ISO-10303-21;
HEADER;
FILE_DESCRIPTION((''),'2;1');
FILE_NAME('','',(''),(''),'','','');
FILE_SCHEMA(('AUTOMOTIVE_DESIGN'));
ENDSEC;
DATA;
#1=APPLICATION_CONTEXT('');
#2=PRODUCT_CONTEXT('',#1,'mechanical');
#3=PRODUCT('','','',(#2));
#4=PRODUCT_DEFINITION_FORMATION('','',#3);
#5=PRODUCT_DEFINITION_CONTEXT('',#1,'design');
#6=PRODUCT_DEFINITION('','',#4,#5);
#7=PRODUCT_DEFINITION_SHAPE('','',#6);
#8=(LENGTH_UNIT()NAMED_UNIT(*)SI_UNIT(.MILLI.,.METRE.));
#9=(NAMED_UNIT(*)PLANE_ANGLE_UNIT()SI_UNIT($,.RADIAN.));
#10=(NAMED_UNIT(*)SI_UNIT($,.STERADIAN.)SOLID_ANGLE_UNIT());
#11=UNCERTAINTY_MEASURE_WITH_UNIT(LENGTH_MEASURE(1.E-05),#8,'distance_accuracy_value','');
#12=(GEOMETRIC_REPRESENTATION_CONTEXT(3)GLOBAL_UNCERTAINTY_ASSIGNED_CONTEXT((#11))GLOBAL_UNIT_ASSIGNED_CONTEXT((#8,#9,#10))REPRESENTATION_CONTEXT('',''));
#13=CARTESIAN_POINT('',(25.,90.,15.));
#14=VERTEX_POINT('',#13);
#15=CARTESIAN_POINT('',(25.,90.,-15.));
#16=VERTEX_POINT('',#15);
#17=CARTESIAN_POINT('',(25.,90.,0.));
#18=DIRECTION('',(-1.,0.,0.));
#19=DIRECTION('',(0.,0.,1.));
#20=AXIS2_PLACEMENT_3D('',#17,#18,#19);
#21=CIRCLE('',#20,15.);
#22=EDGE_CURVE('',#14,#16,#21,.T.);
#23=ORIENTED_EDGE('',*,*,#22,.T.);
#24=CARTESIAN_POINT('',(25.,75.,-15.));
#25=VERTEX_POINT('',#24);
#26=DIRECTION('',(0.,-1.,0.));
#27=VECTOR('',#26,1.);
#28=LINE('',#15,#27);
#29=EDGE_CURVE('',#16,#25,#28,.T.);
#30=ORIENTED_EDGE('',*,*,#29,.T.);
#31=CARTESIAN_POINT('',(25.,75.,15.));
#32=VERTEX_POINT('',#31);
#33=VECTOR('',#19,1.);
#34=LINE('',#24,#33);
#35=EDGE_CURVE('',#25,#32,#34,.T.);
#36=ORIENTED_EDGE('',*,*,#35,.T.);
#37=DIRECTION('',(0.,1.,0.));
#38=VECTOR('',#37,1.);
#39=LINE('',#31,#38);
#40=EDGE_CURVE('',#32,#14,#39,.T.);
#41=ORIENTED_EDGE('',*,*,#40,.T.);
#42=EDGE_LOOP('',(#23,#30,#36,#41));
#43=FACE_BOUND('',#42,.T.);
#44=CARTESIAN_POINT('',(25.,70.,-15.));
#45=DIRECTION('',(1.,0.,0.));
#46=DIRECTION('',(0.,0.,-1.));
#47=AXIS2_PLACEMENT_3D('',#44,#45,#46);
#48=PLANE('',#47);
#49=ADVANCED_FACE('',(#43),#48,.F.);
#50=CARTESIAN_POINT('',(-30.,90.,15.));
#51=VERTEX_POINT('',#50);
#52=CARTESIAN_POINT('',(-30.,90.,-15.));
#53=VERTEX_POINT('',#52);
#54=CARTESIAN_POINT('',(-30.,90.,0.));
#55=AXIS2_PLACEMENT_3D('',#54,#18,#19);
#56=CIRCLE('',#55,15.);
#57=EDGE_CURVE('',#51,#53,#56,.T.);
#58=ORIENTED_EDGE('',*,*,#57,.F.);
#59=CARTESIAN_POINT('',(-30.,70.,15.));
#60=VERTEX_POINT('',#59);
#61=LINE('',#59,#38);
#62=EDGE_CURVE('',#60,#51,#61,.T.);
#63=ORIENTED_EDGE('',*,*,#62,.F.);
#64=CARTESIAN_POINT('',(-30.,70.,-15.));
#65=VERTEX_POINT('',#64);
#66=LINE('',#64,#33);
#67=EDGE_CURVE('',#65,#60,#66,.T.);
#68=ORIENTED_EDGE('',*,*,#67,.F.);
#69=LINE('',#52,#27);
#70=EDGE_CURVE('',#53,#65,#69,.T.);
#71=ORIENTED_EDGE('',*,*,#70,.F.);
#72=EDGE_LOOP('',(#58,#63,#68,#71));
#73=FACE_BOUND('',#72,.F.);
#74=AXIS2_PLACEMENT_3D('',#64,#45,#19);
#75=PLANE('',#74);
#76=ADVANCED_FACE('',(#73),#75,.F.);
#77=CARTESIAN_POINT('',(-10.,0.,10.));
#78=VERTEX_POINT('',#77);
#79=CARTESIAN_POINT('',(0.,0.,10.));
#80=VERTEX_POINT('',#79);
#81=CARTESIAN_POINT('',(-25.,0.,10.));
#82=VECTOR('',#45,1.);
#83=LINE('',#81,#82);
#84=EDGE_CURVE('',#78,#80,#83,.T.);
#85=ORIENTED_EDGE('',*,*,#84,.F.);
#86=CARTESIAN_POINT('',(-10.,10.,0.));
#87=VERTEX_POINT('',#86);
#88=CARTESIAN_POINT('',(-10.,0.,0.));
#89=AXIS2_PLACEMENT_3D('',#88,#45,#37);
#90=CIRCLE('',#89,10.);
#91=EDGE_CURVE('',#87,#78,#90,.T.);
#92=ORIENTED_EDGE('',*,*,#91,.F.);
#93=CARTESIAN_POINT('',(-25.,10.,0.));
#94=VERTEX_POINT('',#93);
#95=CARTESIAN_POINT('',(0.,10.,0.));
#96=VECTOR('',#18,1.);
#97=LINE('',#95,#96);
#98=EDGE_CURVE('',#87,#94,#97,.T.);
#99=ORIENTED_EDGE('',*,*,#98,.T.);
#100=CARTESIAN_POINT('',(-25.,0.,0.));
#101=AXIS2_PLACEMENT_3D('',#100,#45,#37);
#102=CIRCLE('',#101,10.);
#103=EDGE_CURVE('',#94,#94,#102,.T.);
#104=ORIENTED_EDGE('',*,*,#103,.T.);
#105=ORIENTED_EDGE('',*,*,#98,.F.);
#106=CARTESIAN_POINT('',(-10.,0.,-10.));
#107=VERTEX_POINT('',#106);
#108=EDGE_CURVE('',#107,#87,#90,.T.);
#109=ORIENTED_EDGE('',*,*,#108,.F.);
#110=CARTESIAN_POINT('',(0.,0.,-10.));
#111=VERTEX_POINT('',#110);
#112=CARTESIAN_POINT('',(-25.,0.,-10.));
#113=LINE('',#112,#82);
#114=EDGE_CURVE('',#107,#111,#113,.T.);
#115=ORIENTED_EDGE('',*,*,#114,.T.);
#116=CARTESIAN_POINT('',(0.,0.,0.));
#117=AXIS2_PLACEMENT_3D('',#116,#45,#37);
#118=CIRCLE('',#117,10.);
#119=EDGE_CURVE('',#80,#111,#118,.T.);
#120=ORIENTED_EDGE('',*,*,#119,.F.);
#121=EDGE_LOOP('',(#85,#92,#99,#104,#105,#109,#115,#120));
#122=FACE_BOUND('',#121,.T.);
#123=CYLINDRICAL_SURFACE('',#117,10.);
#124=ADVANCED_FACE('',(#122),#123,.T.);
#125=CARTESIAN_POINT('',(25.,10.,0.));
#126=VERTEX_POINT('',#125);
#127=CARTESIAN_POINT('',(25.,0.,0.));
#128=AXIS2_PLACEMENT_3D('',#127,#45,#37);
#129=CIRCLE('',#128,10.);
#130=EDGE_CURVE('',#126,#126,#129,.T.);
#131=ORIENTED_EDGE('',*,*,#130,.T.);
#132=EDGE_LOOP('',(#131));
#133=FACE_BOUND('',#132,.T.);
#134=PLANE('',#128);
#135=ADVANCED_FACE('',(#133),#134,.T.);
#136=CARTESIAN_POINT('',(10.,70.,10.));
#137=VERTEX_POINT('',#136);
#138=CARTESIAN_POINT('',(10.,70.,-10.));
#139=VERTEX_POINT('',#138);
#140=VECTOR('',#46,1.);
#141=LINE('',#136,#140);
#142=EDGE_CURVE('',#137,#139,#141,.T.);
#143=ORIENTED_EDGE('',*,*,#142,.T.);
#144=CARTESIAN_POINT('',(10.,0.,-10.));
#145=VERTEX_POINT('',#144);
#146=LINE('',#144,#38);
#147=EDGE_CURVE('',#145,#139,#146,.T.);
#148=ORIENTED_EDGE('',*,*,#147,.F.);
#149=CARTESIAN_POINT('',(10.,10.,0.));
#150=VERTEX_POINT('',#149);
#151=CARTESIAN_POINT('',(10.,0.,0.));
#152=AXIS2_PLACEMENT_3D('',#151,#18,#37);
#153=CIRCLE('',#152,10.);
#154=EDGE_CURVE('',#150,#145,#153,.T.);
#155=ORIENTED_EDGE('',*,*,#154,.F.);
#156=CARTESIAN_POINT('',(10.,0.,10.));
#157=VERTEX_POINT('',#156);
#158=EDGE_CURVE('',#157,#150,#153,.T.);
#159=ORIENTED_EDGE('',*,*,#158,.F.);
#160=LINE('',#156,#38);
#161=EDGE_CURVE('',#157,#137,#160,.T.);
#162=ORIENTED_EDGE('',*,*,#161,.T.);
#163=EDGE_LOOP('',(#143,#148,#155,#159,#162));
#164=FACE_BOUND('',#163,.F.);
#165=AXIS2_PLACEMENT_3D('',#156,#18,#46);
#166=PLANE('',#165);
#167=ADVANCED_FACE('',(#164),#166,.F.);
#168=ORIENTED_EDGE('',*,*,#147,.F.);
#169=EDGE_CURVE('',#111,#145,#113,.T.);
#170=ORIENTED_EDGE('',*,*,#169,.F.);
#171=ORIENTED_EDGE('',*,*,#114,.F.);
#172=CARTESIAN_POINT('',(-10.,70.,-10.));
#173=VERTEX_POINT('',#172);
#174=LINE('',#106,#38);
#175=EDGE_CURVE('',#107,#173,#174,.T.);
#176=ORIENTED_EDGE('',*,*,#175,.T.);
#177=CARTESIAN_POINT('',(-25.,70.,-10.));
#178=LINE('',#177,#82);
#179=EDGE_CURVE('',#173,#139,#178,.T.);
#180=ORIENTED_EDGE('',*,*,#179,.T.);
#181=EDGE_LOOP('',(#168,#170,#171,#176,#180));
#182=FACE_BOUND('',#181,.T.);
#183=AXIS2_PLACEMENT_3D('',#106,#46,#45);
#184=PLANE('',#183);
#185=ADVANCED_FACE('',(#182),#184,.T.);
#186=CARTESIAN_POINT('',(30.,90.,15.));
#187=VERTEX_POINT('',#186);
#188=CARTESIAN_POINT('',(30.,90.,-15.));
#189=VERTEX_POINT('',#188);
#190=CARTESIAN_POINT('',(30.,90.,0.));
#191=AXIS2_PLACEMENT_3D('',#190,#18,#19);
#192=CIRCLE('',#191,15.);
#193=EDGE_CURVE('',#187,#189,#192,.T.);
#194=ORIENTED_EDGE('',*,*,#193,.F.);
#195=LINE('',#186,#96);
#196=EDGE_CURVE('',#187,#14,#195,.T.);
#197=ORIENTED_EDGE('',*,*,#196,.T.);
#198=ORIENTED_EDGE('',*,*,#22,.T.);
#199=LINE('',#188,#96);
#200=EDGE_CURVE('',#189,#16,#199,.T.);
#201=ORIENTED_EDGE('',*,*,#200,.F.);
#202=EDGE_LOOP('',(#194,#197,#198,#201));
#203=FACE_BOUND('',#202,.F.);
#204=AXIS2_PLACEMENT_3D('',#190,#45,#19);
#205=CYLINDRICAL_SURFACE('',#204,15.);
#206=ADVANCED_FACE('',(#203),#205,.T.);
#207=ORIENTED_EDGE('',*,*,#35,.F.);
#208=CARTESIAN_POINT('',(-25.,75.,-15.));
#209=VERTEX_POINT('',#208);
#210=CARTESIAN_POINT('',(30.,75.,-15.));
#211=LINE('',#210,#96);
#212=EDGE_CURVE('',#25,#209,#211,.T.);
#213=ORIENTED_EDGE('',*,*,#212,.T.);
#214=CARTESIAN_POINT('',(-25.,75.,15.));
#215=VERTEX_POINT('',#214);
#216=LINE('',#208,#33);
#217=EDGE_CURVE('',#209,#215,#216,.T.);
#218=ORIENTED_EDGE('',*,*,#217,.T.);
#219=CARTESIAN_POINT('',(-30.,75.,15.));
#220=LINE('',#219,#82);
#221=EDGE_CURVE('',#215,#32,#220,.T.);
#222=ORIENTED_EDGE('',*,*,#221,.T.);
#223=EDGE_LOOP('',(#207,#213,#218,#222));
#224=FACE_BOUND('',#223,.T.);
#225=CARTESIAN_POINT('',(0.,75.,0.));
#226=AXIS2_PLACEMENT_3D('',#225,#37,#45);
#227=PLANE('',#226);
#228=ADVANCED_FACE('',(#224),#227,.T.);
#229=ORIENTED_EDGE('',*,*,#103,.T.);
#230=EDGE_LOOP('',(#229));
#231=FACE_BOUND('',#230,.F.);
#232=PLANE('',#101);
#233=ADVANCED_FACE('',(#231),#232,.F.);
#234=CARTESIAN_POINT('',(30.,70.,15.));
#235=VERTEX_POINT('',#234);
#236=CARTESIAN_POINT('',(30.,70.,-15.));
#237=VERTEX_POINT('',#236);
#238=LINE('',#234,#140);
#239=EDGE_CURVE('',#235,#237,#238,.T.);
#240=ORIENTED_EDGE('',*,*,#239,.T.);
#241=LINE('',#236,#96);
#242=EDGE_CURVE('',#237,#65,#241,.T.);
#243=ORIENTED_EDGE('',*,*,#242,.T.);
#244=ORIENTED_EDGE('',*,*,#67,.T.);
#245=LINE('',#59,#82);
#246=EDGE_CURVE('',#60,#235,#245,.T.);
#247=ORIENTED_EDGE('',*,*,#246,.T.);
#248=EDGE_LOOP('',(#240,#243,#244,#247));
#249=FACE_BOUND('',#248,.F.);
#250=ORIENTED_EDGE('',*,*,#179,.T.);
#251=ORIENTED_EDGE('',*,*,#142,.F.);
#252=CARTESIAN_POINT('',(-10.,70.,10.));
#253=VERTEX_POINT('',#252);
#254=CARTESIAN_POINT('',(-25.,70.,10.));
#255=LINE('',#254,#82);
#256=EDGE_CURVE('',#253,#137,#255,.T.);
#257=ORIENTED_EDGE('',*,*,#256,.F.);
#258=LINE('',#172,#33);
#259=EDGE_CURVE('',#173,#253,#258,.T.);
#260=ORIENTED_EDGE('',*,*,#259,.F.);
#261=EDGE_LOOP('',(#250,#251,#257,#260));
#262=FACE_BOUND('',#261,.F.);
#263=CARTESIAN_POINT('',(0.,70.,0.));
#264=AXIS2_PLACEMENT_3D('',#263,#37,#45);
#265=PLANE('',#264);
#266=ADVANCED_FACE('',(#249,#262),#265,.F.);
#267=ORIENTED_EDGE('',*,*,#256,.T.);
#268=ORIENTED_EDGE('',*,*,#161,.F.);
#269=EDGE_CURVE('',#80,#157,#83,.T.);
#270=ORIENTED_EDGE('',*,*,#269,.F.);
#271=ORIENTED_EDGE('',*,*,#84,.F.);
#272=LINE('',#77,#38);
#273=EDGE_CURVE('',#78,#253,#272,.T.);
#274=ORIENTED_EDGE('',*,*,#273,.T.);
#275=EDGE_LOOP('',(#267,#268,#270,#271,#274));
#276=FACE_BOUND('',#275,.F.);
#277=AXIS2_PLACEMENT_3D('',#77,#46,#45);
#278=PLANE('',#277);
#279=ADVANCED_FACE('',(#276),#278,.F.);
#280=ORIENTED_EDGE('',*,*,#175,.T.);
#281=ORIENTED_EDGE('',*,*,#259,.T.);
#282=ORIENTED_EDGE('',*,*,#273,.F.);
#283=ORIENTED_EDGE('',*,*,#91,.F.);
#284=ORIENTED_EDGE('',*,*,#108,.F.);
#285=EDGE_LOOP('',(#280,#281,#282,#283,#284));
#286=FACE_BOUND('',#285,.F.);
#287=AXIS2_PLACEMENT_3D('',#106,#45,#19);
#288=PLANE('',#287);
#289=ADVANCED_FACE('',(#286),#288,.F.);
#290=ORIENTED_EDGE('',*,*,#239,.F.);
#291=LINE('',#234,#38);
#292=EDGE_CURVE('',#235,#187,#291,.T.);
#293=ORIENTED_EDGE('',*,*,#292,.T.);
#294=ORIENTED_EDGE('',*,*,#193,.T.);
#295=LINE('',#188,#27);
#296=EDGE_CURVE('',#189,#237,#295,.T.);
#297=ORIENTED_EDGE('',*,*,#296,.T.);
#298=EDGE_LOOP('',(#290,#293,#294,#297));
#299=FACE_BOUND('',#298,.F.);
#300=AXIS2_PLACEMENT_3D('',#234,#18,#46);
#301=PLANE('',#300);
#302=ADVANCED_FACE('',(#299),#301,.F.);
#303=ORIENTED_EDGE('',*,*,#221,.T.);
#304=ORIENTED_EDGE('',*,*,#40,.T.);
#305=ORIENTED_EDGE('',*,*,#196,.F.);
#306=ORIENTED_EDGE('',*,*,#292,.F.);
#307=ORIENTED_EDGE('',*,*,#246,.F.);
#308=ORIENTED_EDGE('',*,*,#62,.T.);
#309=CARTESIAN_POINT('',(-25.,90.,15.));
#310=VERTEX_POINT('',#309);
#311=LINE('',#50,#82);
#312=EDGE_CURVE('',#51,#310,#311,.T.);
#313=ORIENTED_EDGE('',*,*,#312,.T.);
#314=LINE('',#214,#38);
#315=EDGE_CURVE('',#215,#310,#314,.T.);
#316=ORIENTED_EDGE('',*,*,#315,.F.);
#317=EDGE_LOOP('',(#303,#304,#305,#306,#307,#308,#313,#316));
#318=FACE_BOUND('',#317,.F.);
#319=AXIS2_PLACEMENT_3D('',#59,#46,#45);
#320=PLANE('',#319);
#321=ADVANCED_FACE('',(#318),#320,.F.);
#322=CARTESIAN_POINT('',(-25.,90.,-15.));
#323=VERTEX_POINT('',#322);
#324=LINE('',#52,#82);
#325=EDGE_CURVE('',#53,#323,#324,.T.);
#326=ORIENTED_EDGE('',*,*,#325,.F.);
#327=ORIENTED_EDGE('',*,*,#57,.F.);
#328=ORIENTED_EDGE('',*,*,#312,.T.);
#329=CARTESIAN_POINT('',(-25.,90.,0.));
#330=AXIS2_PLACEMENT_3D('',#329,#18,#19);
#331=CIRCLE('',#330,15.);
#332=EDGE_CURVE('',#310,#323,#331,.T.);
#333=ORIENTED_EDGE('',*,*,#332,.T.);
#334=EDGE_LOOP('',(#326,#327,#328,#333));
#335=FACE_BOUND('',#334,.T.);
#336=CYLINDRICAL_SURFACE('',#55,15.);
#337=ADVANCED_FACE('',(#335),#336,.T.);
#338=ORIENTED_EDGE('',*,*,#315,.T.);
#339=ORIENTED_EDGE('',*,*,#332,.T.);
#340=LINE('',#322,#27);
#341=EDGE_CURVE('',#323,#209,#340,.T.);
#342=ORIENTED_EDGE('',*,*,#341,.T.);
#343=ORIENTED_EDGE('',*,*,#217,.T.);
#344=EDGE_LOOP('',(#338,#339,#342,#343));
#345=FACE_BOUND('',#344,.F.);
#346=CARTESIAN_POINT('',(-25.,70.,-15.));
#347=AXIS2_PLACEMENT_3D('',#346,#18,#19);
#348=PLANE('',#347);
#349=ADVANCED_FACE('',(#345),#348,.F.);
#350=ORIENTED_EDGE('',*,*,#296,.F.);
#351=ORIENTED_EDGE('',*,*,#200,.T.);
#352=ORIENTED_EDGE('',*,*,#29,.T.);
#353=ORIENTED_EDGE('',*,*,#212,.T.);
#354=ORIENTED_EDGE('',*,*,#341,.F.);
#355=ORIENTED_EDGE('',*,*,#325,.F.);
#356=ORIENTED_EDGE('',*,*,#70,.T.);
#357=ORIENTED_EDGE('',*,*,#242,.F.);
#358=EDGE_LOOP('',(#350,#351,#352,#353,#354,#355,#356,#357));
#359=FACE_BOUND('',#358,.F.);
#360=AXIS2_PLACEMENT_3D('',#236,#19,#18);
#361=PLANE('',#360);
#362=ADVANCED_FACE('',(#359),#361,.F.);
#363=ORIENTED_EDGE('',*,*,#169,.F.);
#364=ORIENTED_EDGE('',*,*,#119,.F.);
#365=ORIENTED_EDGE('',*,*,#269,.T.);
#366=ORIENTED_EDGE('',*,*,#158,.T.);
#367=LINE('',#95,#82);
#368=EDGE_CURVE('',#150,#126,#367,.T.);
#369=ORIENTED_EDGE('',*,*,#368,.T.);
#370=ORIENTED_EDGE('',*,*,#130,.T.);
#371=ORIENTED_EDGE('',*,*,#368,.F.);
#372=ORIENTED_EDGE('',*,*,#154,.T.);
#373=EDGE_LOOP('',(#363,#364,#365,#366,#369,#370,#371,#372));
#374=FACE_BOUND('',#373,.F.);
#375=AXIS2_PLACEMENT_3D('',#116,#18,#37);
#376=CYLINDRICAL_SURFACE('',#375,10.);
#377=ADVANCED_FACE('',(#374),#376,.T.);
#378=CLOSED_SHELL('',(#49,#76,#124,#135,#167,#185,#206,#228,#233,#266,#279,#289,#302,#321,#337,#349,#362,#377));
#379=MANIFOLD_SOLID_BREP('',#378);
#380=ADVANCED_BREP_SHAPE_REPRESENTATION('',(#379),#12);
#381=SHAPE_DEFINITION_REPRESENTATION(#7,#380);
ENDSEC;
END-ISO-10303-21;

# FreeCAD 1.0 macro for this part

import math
import FreeCAD as App
import Part
import Sketcher
from FreeCAD import Vector
Q = App.Units.Quantity

doc = App.newDocument("Part")
body = doc.addObject("PartDesign::Body", "Body")

# Sketch on YZ plane
sketch1 = doc.addObject("Sketcher::SketchObject", "Sketch")
body.addObject(sketch1)
sketch1.AttachmentSupport = (doc.YZ_Plane, [""])
sketch1.MapMode = "FlatFace"
sketch1.addGeometry(Part.Circle(Vector(0, 0, 0), Vector(0, 0, 1), 10), False)
sketch1.addConstraint([
    Sketcher.Constraint("Coincident", 0, 3, -1, 1),
    Sketcher.Constraint("Diameter", 0, Q("20 mm")),
])
pad1 = doc.addObject("PartDesign::Pad", "Pad")
body.addObject(pad1)
pad1.Profile = sketch1
pad1.Length = 50
pad1.Midplane = True

# Sketch on XZ plane
sketch2 = doc.addObject("Sketcher::SketchObject", "Sketch001")
body.addObject(sketch2)
sketch2.AttachmentSupport = (doc.XZ_Plane, [""])
sketch2.MapMode = "FlatFace"
sketch2.addGeometry([
    Part.LineSegment(Vector(-10, -10, 0), Vector(-10, 10, 0)),
    Part.LineSegment(Vector(-10, 10, 0), Vector(10, 10, 0)),
    Part.LineSegment(Vector(10, 10, 0), Vector(10, -10, 0)),
    Part.LineSegment(Vector(10, -10, 0), Vector(-10, -10, 0)),
], False)
sketch2.addConstraint([
    Sketcher.Constraint("Coincident", 0, 2, 1, 1),
    Sketcher.Constraint("Coincident", 1, 2, 2, 1),
    Sketcher.Constraint("Coincident", 2, 2, 3, 1),
    Sketcher.Constraint("Coincident", 3, 2, 0, 1),
    Sketcher.Constraint("Vertical", 0),
    Sketcher.Constraint("Horizontal", 1),
    Sketcher.Constraint("Vertical", 2),
    Sketcher.Constraint("Horizontal", 3),
    Sketcher.Constraint("Symmetric", 0, 2, 2, 2, -1, 1),
    Sketcher.Constraint("Equal", 3, 0),
    Sketcher.Constraint("DistanceX", 1, 1, 1, 2, Q("20 mm")),
])
pad2 = doc.addObject("PartDesign::Pad", "Pad001")
body.addObject(pad2)
pad2.Profile = sketch2
pad2.Length = 70
pad2.Reversed = True

# Sketch on XZ plane
sketch3 = doc.addObject("Sketcher::SketchObject", "Sketch002")
body.addObject(sketch3)
sketch3.AttachmentSupport = (doc.XZ_Plane, [""])
sketch3.MapMode = "FlatFace"
sketch3.AttachmentOffset = App.Placement(Vector(0, 0, -70), App.Rotation())
sketch3.addGeometry([
    Part.LineSegment(Vector(-30, -15, 0), Vector(-30, 15, 0)),
    Part.LineSegment(Vector(-30, 15, 0), Vector(30, 15, 0)),
    Part.LineSegment(Vector(30, 15, 0), Vector(30, -15, 0)),
    Part.LineSegment(Vector(30, -15, 0), Vector(-30, -15, 0)),
], False)
sketch3.addConstraint([
    Sketcher.Constraint("Coincident", 0, 2, 1, 1),
    Sketcher.Constraint("Coincident", 1, 2, 2, 1),
    Sketcher.Constraint("Coincident", 2, 2, 3, 1),
    Sketcher.Constraint("Coincident", 3, 2, 0, 1),
    Sketcher.Constraint("Vertical", 0),
    Sketcher.Constraint("Horizontal", 1),
    Sketcher.Constraint("Vertical", 2),
    Sketcher.Constraint("Horizontal", 3),
    Sketcher.Constraint("Symmetric", 0, 2, 2, 2, -1, 1),
    Sketcher.Constraint("DistanceX", 1, 1, 1, 2, Q("60 mm")),
    Sketcher.Constraint("DistanceY", 0, 1, 0, 2, Q("30 mm")),
])
pad3 = doc.addObject("PartDesign::Pad", "Pad002")
body.addObject(pad3)
pad3.Profile = sketch3
pad3.Length = 5
pad3.Reversed = True

# Sketch on YZ plane
sketch4 = doc.addObject("Sketcher::SketchObject", "Sketch003")
body.addObject(sketch4)
sketch4.AttachmentSupport = (doc.YZ_Plane, [""])
sketch4.MapMode = "FlatFace"
sketch4.AttachmentOffset = App.Placement(Vector(0, 0, -30), App.Rotation())
sketch4.addGeometry([
    Part.LineSegment(Vector(90, -15, 0), Vector(75, -15, 0)),
    Part.LineSegment(Vector(75, -15, 0), Vector(75, 15, 0)),
    Part.LineSegment(Vector(75, 15, 0), Vector(90, 15, 0)),
    Part.ArcOfCircle(Part.Circle(Vector(90, 0, 0), Vector(0, 0, 1), 15), math.radians(-90), math.radians(90)),
], False)
sketch4.addConstraint([
    Sketcher.Constraint("Coincident", 0, 2, 1, 1),
    Sketcher.Constraint("Coincident", 1, 2, 2, 1),
    Sketcher.Constraint("Tangent", 2, 2, 3, 2),
    Sketcher.Constraint("Tangent", 3, 1, 0, 1),
    Sketcher.Constraint("Horizontal", 0),
    Sketcher.Constraint("Vertical", 1),
    Sketcher.Constraint("Horizontal", 2),
    Sketcher.Constraint("PointOnObject", 3, 3, -1),
    Sketcher.Constraint("Radius", 3, Q("15 mm")),
    Sketcher.Constraint("DistanceX", 0, 2, 0, 1, Q("15 mm")),
    Sketcher.Constraint("DistanceX", -1, 1, 3, 3, Q("90 mm")),
])
pad4 = doc.addObject("PartDesign::Pad", "Pad003")
body.addObject(pad4)
pad4.Profile = sketch4
pad4.Length = 5
doc.recompute()

mirrored = doc.addObject("PartDesign::Mirrored", "Mirrored")
body.addObject(mirrored)
mirrored.Originals = [pad4]
mirrored.MirrorPlane = (doc.YZ_Plane, [""])
body.Tip = mirrored

doc.recompute()
